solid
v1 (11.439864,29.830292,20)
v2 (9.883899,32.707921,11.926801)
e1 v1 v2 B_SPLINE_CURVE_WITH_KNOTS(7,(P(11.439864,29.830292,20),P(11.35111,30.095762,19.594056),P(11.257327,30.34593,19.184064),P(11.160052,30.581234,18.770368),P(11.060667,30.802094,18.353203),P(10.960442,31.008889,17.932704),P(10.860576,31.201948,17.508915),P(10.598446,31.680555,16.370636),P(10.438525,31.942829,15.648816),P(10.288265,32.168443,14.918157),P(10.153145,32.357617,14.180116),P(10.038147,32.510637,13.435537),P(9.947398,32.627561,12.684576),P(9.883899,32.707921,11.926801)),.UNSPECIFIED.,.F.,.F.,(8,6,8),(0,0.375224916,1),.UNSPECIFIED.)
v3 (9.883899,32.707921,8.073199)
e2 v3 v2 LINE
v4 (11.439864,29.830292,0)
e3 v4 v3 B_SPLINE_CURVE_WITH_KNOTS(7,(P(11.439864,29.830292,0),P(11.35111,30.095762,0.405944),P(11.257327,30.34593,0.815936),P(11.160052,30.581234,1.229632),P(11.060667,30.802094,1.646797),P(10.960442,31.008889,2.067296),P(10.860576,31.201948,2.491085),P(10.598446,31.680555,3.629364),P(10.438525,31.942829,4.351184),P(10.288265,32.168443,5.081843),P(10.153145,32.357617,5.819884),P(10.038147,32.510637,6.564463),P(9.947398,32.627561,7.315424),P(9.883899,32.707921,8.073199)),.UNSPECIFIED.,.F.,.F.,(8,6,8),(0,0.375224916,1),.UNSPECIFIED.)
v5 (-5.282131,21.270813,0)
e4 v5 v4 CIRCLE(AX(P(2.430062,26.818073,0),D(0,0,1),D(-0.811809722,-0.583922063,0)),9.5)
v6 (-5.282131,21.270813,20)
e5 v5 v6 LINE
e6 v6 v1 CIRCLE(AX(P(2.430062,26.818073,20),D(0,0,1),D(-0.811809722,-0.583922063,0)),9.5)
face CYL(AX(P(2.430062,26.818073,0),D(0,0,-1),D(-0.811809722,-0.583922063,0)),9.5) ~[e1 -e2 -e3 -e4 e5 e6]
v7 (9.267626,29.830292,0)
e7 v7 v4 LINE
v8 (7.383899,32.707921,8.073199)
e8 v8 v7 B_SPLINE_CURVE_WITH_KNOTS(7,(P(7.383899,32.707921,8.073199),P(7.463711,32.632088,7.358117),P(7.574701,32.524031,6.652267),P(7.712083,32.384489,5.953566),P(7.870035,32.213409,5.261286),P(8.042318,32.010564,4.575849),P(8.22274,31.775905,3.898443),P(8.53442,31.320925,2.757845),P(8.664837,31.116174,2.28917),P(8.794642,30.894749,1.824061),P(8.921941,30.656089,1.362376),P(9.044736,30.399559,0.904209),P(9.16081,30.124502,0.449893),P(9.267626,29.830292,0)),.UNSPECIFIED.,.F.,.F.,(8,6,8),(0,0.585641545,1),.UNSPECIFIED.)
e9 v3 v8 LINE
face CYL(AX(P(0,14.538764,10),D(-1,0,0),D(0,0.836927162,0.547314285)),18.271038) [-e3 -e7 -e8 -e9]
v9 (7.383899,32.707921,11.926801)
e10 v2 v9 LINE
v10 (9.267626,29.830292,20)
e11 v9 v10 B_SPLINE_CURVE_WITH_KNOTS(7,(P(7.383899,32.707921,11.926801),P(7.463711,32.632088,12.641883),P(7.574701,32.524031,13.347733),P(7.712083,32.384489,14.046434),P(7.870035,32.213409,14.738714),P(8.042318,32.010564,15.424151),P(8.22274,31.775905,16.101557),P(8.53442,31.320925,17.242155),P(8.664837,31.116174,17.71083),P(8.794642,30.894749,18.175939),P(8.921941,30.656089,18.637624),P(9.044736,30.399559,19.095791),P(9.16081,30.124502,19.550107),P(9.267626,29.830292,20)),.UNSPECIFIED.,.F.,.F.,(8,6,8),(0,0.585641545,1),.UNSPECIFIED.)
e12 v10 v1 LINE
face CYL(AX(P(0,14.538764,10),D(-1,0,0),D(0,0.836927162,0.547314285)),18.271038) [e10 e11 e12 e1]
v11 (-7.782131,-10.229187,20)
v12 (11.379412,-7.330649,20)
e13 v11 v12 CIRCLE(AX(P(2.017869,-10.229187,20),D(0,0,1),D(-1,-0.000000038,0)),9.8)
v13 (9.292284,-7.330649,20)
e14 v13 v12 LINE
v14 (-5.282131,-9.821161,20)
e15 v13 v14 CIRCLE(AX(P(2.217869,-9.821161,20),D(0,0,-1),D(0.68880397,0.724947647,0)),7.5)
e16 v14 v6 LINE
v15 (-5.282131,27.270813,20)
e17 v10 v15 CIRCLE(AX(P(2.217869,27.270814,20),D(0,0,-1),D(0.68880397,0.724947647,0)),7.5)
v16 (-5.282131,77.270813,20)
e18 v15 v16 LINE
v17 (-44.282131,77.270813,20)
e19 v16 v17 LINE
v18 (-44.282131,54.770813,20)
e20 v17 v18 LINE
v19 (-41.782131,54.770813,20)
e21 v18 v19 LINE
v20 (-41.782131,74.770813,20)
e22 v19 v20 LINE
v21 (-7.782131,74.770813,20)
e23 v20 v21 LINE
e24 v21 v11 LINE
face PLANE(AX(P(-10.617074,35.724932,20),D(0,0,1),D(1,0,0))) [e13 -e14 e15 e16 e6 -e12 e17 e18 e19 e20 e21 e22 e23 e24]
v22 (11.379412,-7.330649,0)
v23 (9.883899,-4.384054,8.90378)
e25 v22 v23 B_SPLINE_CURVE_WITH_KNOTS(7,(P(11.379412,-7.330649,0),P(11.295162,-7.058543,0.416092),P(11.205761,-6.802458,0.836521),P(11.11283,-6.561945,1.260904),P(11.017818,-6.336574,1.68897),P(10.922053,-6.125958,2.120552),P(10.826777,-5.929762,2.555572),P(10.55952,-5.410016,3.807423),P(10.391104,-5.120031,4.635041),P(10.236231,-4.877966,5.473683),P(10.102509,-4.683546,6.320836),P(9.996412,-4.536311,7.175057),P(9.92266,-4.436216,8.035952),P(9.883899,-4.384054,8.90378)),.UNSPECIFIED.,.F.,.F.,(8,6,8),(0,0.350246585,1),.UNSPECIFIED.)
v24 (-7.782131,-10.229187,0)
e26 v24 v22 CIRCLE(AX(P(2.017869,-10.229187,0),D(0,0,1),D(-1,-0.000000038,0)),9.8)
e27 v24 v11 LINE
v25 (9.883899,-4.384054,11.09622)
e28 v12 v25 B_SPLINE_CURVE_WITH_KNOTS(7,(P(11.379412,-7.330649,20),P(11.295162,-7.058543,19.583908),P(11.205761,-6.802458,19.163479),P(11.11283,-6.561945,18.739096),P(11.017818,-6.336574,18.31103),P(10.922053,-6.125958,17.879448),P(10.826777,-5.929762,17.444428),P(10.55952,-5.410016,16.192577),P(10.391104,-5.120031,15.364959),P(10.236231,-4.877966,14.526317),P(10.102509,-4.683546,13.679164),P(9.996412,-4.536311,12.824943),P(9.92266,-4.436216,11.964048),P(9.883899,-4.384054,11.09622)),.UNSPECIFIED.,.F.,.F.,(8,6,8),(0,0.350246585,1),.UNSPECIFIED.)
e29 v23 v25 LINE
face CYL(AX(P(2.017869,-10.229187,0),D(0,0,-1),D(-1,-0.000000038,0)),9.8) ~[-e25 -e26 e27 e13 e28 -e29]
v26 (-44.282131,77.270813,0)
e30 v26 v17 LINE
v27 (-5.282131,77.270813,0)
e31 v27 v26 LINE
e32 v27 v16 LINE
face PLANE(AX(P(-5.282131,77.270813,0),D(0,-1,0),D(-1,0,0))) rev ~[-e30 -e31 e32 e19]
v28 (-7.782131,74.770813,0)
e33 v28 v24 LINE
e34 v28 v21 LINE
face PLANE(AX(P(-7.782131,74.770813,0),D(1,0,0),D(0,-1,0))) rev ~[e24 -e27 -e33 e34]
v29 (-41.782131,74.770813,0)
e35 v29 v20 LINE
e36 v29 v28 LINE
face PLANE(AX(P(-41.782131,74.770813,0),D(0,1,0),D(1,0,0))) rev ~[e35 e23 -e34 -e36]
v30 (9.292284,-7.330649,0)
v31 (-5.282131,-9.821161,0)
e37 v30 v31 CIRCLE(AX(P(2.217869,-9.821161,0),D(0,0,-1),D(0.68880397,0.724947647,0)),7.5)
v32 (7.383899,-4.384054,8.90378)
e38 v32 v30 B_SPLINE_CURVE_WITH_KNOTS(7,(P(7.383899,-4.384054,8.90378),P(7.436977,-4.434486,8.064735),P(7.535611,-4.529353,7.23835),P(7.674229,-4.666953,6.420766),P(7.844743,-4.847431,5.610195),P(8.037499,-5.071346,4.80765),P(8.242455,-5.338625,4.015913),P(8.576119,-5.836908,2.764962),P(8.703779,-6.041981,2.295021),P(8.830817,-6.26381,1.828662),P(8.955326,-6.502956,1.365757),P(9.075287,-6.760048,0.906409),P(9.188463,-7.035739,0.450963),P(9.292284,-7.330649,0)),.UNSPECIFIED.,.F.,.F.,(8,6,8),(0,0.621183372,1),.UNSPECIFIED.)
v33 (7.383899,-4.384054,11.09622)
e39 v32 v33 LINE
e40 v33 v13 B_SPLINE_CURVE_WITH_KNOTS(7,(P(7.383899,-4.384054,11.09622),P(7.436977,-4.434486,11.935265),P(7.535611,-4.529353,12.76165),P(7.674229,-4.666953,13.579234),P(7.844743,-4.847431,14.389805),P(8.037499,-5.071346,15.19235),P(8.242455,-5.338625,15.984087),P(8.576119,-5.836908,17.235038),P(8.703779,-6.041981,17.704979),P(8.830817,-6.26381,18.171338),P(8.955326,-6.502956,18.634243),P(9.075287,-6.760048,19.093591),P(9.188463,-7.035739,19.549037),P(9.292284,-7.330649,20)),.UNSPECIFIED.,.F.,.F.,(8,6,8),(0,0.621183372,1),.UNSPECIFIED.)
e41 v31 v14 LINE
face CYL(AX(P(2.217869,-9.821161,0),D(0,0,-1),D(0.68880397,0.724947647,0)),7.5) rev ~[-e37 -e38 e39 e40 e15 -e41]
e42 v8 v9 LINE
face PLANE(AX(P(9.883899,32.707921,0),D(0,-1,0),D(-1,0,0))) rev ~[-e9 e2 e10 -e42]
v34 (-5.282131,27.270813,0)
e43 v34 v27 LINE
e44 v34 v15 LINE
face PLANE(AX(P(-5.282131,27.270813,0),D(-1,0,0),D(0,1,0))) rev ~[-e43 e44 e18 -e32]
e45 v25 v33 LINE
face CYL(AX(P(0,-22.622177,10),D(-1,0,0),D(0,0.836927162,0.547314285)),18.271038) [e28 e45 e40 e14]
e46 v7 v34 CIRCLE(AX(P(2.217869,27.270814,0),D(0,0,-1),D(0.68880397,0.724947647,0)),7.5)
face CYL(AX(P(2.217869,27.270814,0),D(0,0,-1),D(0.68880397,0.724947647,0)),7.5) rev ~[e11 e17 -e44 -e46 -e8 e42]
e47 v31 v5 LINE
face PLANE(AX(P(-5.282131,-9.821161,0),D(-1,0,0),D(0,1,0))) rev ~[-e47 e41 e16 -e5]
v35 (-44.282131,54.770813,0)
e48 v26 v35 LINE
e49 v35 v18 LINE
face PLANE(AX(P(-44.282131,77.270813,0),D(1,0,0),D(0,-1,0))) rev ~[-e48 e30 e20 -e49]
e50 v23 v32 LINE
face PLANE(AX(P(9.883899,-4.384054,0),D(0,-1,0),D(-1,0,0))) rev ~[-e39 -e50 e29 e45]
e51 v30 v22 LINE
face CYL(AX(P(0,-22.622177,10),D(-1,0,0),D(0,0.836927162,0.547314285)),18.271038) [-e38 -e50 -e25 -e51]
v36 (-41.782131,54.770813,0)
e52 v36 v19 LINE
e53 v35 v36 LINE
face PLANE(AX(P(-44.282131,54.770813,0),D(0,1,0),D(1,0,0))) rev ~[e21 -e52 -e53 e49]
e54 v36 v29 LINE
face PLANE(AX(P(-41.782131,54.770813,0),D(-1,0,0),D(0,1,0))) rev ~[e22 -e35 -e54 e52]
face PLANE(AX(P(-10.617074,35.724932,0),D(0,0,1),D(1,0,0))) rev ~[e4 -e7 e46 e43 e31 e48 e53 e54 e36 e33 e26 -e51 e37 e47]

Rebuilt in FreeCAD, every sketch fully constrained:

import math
import FreeCAD as App
import Part
import Sketcher
from FreeCAD import Vector

doc = App.newDocument("Part")
params = doc.addObject("Spreadsheet::Sheet", "Params")
for row, (alias, value) in enumerate([
    ("sketch1_radius", "9.8 mm"),
    ("sketch1_radius2", "7.5 mm"),
    ("sketch1_radius3", "9.5 mm"),
    ("sketch1_width", "34 mm"),
    ("sketch1_width2", "39 mm"),
    ("pad1_length", "20 mm"),
    ("sketch2_height", "20 mm"),
    ("pocket1_length", "25 mm"),
], start=1):
    params.set(f"A{row}", alias)
    params.set(f"B{row}", "=" + value)
    params.setAlias(f"B{row}", alias)

body = doc.addObject("PartDesign::Body", "Body")

# Sketch on XY plane
sketch1 = body.newObject("Sketcher::SketchObject", "Sketch")
sketch1.AttachmentSupport = (doc.getObject("XY_Plane"), [""])
sketch1.MapMode = "FlatFace"
sketch1.addGeometry(Part.LineSegment(Vector(-44.3, 54.8, 0), Vector(-41.8, 54.8, 0)), False)
sketch1.addGeometry(Part.LineSegment(Vector(-41.8, 54.8, 0), Vector(-41.8, 74.8, 0)), False)
sketch1.addGeometry(Part.LineSegment(Vector(-41.8, 74.8, 0), Vector(-7.8, 74.8, 0)), False)
sketch1.addGeometry(Part.LineSegment(Vector(-7.8, 74.8, 0), Vector(-7.8, -10.2, 0)), False)
sketch1.addGeometry(Part.ArcOfCircle(Part.Circle(Vector(2, -10.2, 0), Vector(0, 0, 1), 9.8), math.radians(-180), math.radians(37)), False)
sketch1.addGeometry(Part.LineSegment(Vector(9.9, -4.4, 0), Vector(7.4, -4.4, 0)), False)
sketch1.addGeometry(Part.ArcOfCircle(Part.Circle(Vector(2.2, -9.8, 0), Vector(0, 0, 1), 7.5), math.radians(180), math.radians(406)), False)
sketch1.addGeometry(Part.LineSegment(Vector(-5.3, -9.8, 0), Vector(-5.3, 21.3, 0)), False)
sketch1.addGeometry(Part.ArcOfCircle(Part.Circle(Vector(2.4, 26.8, 0), Vector(0, 0, 1), 9.5), math.radians(-144), math.radians(38)), False)
sketch1.addGeometry(Part.LineSegment(Vector(9.9, 32.7, 0), Vector(7.4, 32.7, 0)), False)
sketch1.addGeometry(Part.ArcOfCircle(Part.Circle(Vector(2.2, 27.3, 0), Vector(0, 0, 1), 7.5), math.radians(-180), math.radians(46)), False)
sketch1.addGeometry(Part.LineSegment(Vector(-5.3, 27.3, 0), Vector(-5.3, 77.3, 0)), False)
sketch1.addGeometry(Part.LineSegment(Vector(-5.3, 77.3, 0), Vector(-44.3, 77.3, 0)), False)
sketch1.addGeometry(Part.LineSegment(Vector(-44.3, 77.3, 0), Vector(-44.3, 54.8, 0)), False)
sketch1.addConstraint(Sketcher.Constraint("Coincident", 0, 2, 1, 1))
sketch1.addConstraint(Sketcher.Constraint("Coincident", 1, 2, 2, 1))
sketch1.addConstraint(Sketcher.Constraint("Coincident", 2, 2, 3, 1))
sketch1.addConstraint(Sketcher.Constraint("Tangent", 3, 2, 4, 1))
sketch1.addConstraint(Sketcher.Constraint("Coincident", 4, 2, 5, 1))
sketch1.addConstraint(Sketcher.Constraint("Coincident", 5, 2, 6, 2))
sketch1.addConstraint(Sketcher.Constraint("Tangent", 6, 1, 7, 1))
sketch1.addConstraint(Sketcher.Constraint("Coincident", 7, 2, 8, 1))
sketch1.addConstraint(Sketcher.Constraint("Coincident", 8, 2, 9, 1))
sketch1.addConstraint(Sketcher.Constraint("Coincident", 9, 2, 10, 2))
sketch1.addConstraint(Sketcher.Constraint("Tangent", 10, 1, 11, 1))
sketch1.addConstraint(Sketcher.Constraint("Coincident", 11, 2, 12, 1))
sketch1.addConstraint(Sketcher.Constraint("Coincident", 12, 2, 13, 1))
sketch1.addConstraint(Sketcher.Constraint("Coincident", 13, 2, 0, 1))
sketch1.addConstraint(Sketcher.Constraint("Horizontal", 0))
sketch1.addConstraint(Sketcher.Constraint("Vertical", 1))
sketch1.addConstraint(Sketcher.Constraint("Horizontal", 2))
sketch1.addConstraint(Sketcher.Constraint("Vertical", 3))
sketch1.addConstraint(Sketcher.Constraint("Horizontal", 5))
sketch1.addConstraint(Sketcher.Constraint("Vertical", 7))
sketch1.addConstraint(Sketcher.Constraint("Horizontal", 9))
sketch1.addConstraint(Sketcher.Constraint("Vertical", 11))
sketch1.addConstraint(Sketcher.Constraint("Horizontal", 12))
sketch1.addConstraint(Sketcher.Constraint("Vertical", 13))
sketch1.addConstraint(Sketcher.Constraint("Equal", 6, 10))
sketch1.addConstraint(Sketcher.Constraint("Vertical", 6, 3, 10, 3))
sketch1.addConstraint(Sketcher.Constraint("Vertical", 4, 2, 8, 2))
sketch1.addConstraint(Sketcher.Constraint("Vertical", 5, 2, 9, 2))
sketch1.addConstraint(Sketcher.Constraint("Equal", 0, 5))
sketch1.addConstraint(Sketcher.Constraint("Radius", 4, 9.8))
sketch1.addConstraint(Sketcher.Constraint("Radius", 6, 7.5))
sketch1.addConstraint(Sketcher.Constraint("Radius", 8, 9.5))
sketch1.addConstraint(Sketcher.Constraint("DistanceX", 2, 1, 2, 2, 34.0))
sketch1.addConstraint(Sketcher.Constraint("DistanceX", 12, 2, 12, 1, 39.0))
sketch1.addConstraint(Sketcher.Constraint("DistanceY", 1, 1, 1, 2, 20.0))
sketch1.addConstraint(Sketcher.Constraint("DistanceY", 3, 2, 3, 1, 85.0))
sketch1.addConstraint(Sketcher.Constraint("DistanceY", 11, 1, 11, 2, 50.0))
sketch1.addConstraint(Sketcher.Constraint("DistanceX", 0, 1, 0, 2, 2.5))
sketch1.addConstraint(Sketcher.Constraint("DistanceY", 13, 2, 13, 1, 22.5))
sketch1.addConstraint(Sketcher.Constraint("DistanceY", 7, 2, 10, 3, 6.000001))
sketch1.addConstraint(Sketcher.Constraint("DistanceX", -1, 1, 4, 2, 9.883899))
sketch1.addConstraint(Sketcher.Constraint("DistanceY", 7, 1, 7, 2, 31.091974))
sketch1.addConstraint(Sketcher.Constraint("DistanceY", 6, 3, -1, 1, 9.821161))
sketch1.setExpression("Constraints[29]", "Params.sketch1_radius")
sketch1.setExpression("Constraints[30]", "Params.sketch1_radius2")
sketch1.setExpression("Constraints[31]", "Params.sketch1_radius3")
sketch1.setExpression("Constraints[32]", "Params.sketch1_width")
sketch1.setExpression("Constraints[33]", "Params.sketch1_width2")
pad1 = body.newObject("PartDesign::Pad", "Pad")
pad1.Profile = sketch1
pad1.setExpression("Length", "Params.pad1_length")

# Sketch on YZ plane
sketch2 = body.newObject("Sketcher::SketchObject", "Sketch001")
sketch2.AttachmentSupport = (doc.getObject("YZ_Plane"), [""])
sketch2.MapMode = "FlatFace"
sketch2.addGeometry(Part.ArcOfCircle(Part.Circle(Vector(15, 10, 0), Vector(0, 0, 1), 18), math.radians(-33), math.radians(33)), False)
sketch2.addGeometry(Part.LineSegment(Vector(30, 0, 0), Vector(35, 0, 0)), False)
sketch2.addGeometry(Part.LineSegment(Vector(35, 0, 0), Vector(35, 20, 0)), False)
sketch2.addGeometry(Part.LineSegment(Vector(35, 20, 0), Vector(30, 20, 0)), False)
sketch2.addGeometry(Part.ArcOfCircle(Part.Circle(Vector(-23, 10, 0), Vector(0, 0, 1), 18), math.radians(-33), math.radians(33)), False)
sketch2.addGeometry(Part.LineSegment(Vector(-7, 0, 0), Vector(-2, 0, 0)), False)
sketch2.addGeometry(Part.LineSegment(Vector(-2, 0, 0), Vector(-2, 20, 0)), False)
sketch2.addGeometry(Part.LineSegment(Vector(-2, 20, 0), Vector(-7, 20, 0)), False)
sketch2.addConstraint(Sketcher.Constraint("Coincident", 0, 1, 1, 1))
sketch2.addConstraint(Sketcher.Constraint("Coincident", 1, 2, 2, 1))
sketch2.addConstraint(Sketcher.Constraint("Coincident", 2, 2, 3, 1))
sketch2.addConstraint(Sketcher.Constraint("Coincident", 3, 2, 0, 2))
sketch2.addConstraint(Sketcher.Constraint("Coincident", 4, 1, 5, 1))
sketch2.addConstraint(Sketcher.Constraint("Coincident", 5, 2, 6, 1))
sketch2.addConstraint(Sketcher.Constraint("Coincident", 6, 2, 7, 1))
sketch2.addConstraint(Sketcher.Constraint("Coincident", 7, 2, 4, 2))
sketch2.addConstraint(Sketcher.Constraint("Horizontal", 1))
sketch2.addConstraint(Sketcher.Constraint("Vertical", 2))
sketch2.addConstraint(Sketcher.Constraint("Horizontal", 3))
sketch2.addConstraint(Sketcher.Constraint("Horizontal", 5))
sketch2.addConstraint(Sketcher.Constraint("Vertical", 6))
sketch2.addConstraint(Sketcher.Constraint("Horizontal", 7))
sketch2.addConstraint(Sketcher.Constraint("Equal", 0, 4))
sketch2.addConstraint(Sketcher.Constraint("PointOnObject", 0, 1, -1))
sketch2.addConstraint(Sketcher.Constraint("PointOnObject", 4, 1, -1))
sketch2.addConstraint(Sketcher.Constraint("Horizontal", 0, 3, 4, 3))
sketch2.addConstraint(Sketcher.Constraint("Horizontal", 3, 2, 6, 2))
sketch2.addConstraint(Sketcher.Constraint("Vertical", 0, 1, 3, 2))
sketch2.addConstraint(Sketcher.Constraint("Equal", 3, 5))
sketch2.addConstraint(Sketcher.Constraint("DistanceY", 2, 1, 2, 2, 20.0))
sketch2.addConstraint(Sketcher.Constraint("Radius", 0, 18.271038))
sketch2.addConstraint(Sketcher.Constraint("DistanceX", 1, 1, 1, 2, 5.115103))
sketch2.addConstraint(Sketcher.Constraint("DistanceX", -1, 1, 0, 1, 29.830292))
sketch2.addConstraint(Sketcher.Constraint("DistanceX", 4, 1, -1, 1, 7.330649))
sketch2.setExpression("Constraints[21]", "Params.sketch2_height")
pocket1 = body.newObject("PartDesign::Pocket", "Pocket")
pocket1.Profile = sketch2
pocket1.setExpression("Length", "Params.pocket1_length")
pocket1.Reversed = True

doc.recompute()
